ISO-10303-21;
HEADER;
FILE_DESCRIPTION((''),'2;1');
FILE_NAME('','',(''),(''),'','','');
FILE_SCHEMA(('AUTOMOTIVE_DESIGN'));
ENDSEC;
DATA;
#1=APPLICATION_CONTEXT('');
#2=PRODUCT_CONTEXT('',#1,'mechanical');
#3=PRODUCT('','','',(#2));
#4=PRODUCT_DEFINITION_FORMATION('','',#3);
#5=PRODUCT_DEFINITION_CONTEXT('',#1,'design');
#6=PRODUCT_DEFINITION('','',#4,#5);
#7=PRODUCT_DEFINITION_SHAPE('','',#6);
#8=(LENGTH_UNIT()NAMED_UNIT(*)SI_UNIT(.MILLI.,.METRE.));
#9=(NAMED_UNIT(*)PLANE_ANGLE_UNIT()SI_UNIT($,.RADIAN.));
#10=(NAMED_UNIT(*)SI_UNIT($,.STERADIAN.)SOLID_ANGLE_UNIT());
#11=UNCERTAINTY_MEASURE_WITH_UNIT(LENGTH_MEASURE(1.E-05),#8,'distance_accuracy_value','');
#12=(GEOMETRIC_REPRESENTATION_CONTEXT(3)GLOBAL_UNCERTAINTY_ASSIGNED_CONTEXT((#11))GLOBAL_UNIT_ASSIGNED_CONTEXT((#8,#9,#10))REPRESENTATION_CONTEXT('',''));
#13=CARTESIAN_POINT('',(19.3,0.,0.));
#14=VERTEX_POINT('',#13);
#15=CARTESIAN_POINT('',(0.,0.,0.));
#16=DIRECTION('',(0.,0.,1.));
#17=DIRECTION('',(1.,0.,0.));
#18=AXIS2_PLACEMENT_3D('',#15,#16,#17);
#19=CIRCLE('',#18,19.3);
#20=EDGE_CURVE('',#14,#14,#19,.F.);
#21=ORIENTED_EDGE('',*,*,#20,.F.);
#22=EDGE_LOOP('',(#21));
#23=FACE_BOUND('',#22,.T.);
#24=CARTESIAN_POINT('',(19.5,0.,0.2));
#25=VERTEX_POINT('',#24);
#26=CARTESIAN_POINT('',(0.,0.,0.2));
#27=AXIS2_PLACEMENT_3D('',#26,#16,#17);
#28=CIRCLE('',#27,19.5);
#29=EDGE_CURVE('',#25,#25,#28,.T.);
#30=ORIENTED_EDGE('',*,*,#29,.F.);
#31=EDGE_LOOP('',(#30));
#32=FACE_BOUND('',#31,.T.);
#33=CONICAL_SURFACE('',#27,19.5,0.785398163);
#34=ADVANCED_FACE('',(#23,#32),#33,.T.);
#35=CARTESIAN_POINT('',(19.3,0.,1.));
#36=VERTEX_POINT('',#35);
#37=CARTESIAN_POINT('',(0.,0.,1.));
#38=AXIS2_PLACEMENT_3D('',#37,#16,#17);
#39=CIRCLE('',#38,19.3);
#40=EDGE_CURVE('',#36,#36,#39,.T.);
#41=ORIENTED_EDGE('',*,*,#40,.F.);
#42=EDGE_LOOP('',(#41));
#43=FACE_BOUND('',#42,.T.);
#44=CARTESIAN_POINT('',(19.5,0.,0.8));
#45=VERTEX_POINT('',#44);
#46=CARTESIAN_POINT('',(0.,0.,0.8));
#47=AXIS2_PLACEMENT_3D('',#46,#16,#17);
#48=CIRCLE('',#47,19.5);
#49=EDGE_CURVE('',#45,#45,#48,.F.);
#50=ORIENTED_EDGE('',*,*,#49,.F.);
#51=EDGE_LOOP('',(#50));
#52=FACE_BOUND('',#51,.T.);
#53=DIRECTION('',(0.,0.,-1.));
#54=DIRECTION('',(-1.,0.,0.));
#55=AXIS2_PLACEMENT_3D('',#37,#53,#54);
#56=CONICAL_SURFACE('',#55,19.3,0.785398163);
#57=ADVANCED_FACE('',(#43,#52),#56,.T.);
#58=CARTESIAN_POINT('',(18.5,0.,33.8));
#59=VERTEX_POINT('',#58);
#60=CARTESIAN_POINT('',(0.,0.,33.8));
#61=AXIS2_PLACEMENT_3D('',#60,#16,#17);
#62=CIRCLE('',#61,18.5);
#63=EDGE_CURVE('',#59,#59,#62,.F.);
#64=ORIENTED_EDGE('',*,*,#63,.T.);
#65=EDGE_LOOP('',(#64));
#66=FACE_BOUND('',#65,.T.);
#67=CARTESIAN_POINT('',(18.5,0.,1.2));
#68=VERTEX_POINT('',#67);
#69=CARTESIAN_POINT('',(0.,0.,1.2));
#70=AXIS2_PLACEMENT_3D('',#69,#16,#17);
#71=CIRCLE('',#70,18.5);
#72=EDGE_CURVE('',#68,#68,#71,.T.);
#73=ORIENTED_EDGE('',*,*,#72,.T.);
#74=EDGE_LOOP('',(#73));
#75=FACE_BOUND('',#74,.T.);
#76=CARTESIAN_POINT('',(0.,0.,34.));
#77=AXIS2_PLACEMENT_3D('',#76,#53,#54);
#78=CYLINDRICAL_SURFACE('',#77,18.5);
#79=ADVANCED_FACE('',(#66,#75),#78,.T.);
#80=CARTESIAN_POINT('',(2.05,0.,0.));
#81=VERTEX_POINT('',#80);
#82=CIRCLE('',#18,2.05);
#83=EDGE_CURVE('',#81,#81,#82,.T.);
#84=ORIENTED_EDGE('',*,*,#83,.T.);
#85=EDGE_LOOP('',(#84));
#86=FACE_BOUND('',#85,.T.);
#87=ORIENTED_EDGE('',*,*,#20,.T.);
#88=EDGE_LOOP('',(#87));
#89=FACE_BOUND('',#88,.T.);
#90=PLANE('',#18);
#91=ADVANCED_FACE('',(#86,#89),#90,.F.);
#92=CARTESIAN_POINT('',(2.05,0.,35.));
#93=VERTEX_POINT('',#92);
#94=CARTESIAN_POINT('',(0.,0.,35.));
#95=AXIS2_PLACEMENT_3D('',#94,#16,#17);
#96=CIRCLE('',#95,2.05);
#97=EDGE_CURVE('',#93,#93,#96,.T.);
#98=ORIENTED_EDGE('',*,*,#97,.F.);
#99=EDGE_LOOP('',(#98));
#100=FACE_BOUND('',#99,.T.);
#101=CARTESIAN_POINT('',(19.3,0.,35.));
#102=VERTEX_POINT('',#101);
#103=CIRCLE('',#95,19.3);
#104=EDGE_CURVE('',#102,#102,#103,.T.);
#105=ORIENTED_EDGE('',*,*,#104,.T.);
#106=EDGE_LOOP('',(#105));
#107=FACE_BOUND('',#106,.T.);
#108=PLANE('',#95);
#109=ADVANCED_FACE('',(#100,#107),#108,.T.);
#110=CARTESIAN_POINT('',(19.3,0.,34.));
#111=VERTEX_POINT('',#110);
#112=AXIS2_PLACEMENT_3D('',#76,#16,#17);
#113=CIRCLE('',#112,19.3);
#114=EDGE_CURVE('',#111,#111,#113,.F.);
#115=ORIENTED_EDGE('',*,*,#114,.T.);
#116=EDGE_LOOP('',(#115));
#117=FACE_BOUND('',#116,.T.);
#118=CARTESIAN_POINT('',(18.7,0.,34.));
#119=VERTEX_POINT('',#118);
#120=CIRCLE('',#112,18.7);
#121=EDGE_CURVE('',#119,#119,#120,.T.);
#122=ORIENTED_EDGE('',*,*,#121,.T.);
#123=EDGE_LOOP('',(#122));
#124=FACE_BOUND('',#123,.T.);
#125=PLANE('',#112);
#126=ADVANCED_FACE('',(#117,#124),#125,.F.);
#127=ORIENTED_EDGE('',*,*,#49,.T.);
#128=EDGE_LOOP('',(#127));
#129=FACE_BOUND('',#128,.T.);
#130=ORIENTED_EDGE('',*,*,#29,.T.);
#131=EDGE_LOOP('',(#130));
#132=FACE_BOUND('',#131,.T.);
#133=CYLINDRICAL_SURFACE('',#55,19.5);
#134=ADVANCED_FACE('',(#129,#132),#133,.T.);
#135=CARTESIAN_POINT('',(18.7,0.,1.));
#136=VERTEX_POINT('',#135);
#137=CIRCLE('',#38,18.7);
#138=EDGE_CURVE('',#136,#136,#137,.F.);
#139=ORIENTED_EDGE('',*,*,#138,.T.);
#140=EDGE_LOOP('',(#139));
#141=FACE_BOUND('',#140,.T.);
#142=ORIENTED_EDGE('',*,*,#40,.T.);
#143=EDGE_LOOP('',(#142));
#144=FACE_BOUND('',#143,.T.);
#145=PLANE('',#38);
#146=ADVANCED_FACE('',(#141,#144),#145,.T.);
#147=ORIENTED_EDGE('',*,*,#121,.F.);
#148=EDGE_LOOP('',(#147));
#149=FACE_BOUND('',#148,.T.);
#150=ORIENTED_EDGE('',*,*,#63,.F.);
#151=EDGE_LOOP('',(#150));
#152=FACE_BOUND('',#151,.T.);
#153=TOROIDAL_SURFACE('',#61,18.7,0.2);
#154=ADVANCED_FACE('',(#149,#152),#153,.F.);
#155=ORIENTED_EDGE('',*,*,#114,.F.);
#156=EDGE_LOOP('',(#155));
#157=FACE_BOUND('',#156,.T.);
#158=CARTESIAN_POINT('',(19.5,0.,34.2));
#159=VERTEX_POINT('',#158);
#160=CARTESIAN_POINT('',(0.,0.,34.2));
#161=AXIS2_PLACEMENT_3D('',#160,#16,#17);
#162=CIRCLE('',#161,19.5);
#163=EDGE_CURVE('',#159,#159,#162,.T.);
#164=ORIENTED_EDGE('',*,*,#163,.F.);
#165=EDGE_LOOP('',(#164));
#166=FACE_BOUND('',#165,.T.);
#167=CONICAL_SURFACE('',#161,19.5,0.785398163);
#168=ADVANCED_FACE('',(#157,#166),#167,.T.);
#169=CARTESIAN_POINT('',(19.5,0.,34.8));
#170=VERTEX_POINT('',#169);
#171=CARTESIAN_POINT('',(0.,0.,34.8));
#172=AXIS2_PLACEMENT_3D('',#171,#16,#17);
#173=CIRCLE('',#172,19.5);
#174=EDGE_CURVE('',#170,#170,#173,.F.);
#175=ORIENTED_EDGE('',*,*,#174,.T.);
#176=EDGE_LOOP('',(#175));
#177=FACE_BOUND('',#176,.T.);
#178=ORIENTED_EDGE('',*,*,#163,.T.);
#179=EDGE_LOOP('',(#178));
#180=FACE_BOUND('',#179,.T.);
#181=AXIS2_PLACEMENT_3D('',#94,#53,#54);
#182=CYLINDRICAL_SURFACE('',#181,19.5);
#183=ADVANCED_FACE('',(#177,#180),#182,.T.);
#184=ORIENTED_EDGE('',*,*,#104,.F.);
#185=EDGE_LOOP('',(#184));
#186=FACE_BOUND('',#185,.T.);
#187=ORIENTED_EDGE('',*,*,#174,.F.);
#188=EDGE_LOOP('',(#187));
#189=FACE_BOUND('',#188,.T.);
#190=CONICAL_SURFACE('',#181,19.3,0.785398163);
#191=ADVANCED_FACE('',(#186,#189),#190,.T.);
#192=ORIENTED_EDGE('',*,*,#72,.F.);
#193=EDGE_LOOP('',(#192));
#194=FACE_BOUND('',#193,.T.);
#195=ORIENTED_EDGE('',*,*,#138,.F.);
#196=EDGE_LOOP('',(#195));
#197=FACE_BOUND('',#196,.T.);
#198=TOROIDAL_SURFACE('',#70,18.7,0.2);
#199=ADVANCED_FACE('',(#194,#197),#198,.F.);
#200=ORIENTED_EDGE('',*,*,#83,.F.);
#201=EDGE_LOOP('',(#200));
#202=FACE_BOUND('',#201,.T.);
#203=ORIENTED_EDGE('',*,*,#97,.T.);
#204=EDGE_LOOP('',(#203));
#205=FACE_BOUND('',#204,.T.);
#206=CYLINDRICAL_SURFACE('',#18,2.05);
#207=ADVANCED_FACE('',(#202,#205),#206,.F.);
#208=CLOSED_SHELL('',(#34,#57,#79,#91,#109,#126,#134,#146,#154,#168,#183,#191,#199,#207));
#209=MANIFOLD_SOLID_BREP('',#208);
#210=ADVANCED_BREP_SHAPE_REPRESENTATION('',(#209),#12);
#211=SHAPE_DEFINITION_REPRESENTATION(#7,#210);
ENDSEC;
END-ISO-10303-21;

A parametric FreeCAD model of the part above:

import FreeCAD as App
import Part
import Sketcher
from FreeCAD import Vector
Q = App.Units.Quantity


def edges_at(feature, points):
    """Names of the edges that pass closest to the given points."""
    edges = feature.Shape.Edges
    near = lambda p: min(range(len(edges)), key=lambda i: edges[i].distToShape(Part.Vertex(*p))[0])
    return sorted({f"Edge{near(p) + 1}" for p in points})

doc = App.newDocument("Part")
body = doc.addObject("PartDesign::Body", "Body")

# Sketch on XY plane
sketch1 = body.newObject("Sketcher::SketchObject", "Sketch")
sketch1.AttachmentSupport = (doc.getObject("XY_Plane"), [""])
sketch1.MapMode = "FlatFace"
sketch1.addGeometry(Part.Circle(Vector(0, 0, 0), Vector(0, 0, 1), 20), False)
sketch1.addConstraint([
    Sketcher.Constraint("Coincident", 0, 3, -1, 1),
    Sketcher.Constraint("Diameter", 0, Q("39 mm")),
])
pad1 = body.newObject("PartDesign::Pad", "Pad")
pad1.Profile = sketch1
pad1.Length = 1

# Sketch on XY plane
sketch2 = body.newObject("Sketcher::SketchObject", "Sketch001")
sketch2.AttachmentSupport = (doc.getObject("XY_Plane"), [""])
sketch2.MapMode = "FlatFace"
sketch2.AttachmentOffset = App.Placement(Vector(0, 0, 1), App.Rotation())
sketch2.addGeometry(Part.Circle(Vector(0, 0, 0), Vector(0, 0, 1), 18), False)
sketch2.addConstraint([
    Sketcher.Constraint("Coincident", 0, 3, -1, 1),
    Sketcher.Constraint("Diameter", 0, Q("37 mm")),
])
pad2 = body.newObject("PartDesign::Pad", "Pad001")
pad2.Profile = sketch2
pad2.Length = 33

# Sketch on XY plane
sketch3 = body.newObject("Sketcher::SketchObject", "Sketch002")
sketch3.AttachmentSupport = (doc.getObject("XY_Plane"), [""])
sketch3.MapMode = "FlatFace"
sketch3.AttachmentOffset = App.Placement(Vector(0, 0, 34), App.Rotation())
sketch3.addGeometry(Part.Circle(Vector(0, 0, 0), Vector(0, 0, 1), 20), False)
sketch3.addConstraint([
    Sketcher.Constraint("Coincident", 0, 3, -1, 1),
    Sketcher.Constraint("Diameter", 0, Q("39 mm")),
])
pad3 = body.newObject("PartDesign::Pad", "Pad002")
pad3.Profile = sketch3
pad3.Length = 1
doc.recompute()

fillet = body.newObject("PartDesign::Fillet", "Fillet")
fillet.Base = (pad3, edges_at(pad3, [(-18.5, 0, 1), (-18.5, 0, 34)]))
fillet.Radius = 0.2
doc.recompute()

chamfer = body.newObject("PartDesign::Chamfer", "Chamfer")
chamfer.Base = (fillet, edges_at(fillet, [
    (-19.5, 0, 35),
    (-19.5, 0, 0),
    (-19.5, 0, 1),
    (-19.5, 0, 34),
]))
chamfer.Size = 0.2

# Sketch on XY plane
sketch4 = body.newObject("Sketcher::SketchObject", "Sketch003")
sketch4.AttachmentSupport = (doc.getObject("XY_Plane"), [""])
sketch4.MapMode = "FlatFace"
sketch4.AttachmentOffset = App.Placement(Vector(0, 0, 35), App.Rotation())
sketch4.addGeometry(Part.Circle(Vector(0, 0, 0), Vector(0, 0, 1), 2), False)
sketch4.addConstraint([
    Sketcher.Constraint("Coincident", 0, 3, -1, 1),
    Sketcher.Constraint("Diameter", 0, Q("4.1 mm")),
])
pocket1 = body.newObject("PartDesign::Pocket", "Pocket")
pocket1.Profile = sketch4
pocket1.Type = "ThroughAll"

doc.recompute()
